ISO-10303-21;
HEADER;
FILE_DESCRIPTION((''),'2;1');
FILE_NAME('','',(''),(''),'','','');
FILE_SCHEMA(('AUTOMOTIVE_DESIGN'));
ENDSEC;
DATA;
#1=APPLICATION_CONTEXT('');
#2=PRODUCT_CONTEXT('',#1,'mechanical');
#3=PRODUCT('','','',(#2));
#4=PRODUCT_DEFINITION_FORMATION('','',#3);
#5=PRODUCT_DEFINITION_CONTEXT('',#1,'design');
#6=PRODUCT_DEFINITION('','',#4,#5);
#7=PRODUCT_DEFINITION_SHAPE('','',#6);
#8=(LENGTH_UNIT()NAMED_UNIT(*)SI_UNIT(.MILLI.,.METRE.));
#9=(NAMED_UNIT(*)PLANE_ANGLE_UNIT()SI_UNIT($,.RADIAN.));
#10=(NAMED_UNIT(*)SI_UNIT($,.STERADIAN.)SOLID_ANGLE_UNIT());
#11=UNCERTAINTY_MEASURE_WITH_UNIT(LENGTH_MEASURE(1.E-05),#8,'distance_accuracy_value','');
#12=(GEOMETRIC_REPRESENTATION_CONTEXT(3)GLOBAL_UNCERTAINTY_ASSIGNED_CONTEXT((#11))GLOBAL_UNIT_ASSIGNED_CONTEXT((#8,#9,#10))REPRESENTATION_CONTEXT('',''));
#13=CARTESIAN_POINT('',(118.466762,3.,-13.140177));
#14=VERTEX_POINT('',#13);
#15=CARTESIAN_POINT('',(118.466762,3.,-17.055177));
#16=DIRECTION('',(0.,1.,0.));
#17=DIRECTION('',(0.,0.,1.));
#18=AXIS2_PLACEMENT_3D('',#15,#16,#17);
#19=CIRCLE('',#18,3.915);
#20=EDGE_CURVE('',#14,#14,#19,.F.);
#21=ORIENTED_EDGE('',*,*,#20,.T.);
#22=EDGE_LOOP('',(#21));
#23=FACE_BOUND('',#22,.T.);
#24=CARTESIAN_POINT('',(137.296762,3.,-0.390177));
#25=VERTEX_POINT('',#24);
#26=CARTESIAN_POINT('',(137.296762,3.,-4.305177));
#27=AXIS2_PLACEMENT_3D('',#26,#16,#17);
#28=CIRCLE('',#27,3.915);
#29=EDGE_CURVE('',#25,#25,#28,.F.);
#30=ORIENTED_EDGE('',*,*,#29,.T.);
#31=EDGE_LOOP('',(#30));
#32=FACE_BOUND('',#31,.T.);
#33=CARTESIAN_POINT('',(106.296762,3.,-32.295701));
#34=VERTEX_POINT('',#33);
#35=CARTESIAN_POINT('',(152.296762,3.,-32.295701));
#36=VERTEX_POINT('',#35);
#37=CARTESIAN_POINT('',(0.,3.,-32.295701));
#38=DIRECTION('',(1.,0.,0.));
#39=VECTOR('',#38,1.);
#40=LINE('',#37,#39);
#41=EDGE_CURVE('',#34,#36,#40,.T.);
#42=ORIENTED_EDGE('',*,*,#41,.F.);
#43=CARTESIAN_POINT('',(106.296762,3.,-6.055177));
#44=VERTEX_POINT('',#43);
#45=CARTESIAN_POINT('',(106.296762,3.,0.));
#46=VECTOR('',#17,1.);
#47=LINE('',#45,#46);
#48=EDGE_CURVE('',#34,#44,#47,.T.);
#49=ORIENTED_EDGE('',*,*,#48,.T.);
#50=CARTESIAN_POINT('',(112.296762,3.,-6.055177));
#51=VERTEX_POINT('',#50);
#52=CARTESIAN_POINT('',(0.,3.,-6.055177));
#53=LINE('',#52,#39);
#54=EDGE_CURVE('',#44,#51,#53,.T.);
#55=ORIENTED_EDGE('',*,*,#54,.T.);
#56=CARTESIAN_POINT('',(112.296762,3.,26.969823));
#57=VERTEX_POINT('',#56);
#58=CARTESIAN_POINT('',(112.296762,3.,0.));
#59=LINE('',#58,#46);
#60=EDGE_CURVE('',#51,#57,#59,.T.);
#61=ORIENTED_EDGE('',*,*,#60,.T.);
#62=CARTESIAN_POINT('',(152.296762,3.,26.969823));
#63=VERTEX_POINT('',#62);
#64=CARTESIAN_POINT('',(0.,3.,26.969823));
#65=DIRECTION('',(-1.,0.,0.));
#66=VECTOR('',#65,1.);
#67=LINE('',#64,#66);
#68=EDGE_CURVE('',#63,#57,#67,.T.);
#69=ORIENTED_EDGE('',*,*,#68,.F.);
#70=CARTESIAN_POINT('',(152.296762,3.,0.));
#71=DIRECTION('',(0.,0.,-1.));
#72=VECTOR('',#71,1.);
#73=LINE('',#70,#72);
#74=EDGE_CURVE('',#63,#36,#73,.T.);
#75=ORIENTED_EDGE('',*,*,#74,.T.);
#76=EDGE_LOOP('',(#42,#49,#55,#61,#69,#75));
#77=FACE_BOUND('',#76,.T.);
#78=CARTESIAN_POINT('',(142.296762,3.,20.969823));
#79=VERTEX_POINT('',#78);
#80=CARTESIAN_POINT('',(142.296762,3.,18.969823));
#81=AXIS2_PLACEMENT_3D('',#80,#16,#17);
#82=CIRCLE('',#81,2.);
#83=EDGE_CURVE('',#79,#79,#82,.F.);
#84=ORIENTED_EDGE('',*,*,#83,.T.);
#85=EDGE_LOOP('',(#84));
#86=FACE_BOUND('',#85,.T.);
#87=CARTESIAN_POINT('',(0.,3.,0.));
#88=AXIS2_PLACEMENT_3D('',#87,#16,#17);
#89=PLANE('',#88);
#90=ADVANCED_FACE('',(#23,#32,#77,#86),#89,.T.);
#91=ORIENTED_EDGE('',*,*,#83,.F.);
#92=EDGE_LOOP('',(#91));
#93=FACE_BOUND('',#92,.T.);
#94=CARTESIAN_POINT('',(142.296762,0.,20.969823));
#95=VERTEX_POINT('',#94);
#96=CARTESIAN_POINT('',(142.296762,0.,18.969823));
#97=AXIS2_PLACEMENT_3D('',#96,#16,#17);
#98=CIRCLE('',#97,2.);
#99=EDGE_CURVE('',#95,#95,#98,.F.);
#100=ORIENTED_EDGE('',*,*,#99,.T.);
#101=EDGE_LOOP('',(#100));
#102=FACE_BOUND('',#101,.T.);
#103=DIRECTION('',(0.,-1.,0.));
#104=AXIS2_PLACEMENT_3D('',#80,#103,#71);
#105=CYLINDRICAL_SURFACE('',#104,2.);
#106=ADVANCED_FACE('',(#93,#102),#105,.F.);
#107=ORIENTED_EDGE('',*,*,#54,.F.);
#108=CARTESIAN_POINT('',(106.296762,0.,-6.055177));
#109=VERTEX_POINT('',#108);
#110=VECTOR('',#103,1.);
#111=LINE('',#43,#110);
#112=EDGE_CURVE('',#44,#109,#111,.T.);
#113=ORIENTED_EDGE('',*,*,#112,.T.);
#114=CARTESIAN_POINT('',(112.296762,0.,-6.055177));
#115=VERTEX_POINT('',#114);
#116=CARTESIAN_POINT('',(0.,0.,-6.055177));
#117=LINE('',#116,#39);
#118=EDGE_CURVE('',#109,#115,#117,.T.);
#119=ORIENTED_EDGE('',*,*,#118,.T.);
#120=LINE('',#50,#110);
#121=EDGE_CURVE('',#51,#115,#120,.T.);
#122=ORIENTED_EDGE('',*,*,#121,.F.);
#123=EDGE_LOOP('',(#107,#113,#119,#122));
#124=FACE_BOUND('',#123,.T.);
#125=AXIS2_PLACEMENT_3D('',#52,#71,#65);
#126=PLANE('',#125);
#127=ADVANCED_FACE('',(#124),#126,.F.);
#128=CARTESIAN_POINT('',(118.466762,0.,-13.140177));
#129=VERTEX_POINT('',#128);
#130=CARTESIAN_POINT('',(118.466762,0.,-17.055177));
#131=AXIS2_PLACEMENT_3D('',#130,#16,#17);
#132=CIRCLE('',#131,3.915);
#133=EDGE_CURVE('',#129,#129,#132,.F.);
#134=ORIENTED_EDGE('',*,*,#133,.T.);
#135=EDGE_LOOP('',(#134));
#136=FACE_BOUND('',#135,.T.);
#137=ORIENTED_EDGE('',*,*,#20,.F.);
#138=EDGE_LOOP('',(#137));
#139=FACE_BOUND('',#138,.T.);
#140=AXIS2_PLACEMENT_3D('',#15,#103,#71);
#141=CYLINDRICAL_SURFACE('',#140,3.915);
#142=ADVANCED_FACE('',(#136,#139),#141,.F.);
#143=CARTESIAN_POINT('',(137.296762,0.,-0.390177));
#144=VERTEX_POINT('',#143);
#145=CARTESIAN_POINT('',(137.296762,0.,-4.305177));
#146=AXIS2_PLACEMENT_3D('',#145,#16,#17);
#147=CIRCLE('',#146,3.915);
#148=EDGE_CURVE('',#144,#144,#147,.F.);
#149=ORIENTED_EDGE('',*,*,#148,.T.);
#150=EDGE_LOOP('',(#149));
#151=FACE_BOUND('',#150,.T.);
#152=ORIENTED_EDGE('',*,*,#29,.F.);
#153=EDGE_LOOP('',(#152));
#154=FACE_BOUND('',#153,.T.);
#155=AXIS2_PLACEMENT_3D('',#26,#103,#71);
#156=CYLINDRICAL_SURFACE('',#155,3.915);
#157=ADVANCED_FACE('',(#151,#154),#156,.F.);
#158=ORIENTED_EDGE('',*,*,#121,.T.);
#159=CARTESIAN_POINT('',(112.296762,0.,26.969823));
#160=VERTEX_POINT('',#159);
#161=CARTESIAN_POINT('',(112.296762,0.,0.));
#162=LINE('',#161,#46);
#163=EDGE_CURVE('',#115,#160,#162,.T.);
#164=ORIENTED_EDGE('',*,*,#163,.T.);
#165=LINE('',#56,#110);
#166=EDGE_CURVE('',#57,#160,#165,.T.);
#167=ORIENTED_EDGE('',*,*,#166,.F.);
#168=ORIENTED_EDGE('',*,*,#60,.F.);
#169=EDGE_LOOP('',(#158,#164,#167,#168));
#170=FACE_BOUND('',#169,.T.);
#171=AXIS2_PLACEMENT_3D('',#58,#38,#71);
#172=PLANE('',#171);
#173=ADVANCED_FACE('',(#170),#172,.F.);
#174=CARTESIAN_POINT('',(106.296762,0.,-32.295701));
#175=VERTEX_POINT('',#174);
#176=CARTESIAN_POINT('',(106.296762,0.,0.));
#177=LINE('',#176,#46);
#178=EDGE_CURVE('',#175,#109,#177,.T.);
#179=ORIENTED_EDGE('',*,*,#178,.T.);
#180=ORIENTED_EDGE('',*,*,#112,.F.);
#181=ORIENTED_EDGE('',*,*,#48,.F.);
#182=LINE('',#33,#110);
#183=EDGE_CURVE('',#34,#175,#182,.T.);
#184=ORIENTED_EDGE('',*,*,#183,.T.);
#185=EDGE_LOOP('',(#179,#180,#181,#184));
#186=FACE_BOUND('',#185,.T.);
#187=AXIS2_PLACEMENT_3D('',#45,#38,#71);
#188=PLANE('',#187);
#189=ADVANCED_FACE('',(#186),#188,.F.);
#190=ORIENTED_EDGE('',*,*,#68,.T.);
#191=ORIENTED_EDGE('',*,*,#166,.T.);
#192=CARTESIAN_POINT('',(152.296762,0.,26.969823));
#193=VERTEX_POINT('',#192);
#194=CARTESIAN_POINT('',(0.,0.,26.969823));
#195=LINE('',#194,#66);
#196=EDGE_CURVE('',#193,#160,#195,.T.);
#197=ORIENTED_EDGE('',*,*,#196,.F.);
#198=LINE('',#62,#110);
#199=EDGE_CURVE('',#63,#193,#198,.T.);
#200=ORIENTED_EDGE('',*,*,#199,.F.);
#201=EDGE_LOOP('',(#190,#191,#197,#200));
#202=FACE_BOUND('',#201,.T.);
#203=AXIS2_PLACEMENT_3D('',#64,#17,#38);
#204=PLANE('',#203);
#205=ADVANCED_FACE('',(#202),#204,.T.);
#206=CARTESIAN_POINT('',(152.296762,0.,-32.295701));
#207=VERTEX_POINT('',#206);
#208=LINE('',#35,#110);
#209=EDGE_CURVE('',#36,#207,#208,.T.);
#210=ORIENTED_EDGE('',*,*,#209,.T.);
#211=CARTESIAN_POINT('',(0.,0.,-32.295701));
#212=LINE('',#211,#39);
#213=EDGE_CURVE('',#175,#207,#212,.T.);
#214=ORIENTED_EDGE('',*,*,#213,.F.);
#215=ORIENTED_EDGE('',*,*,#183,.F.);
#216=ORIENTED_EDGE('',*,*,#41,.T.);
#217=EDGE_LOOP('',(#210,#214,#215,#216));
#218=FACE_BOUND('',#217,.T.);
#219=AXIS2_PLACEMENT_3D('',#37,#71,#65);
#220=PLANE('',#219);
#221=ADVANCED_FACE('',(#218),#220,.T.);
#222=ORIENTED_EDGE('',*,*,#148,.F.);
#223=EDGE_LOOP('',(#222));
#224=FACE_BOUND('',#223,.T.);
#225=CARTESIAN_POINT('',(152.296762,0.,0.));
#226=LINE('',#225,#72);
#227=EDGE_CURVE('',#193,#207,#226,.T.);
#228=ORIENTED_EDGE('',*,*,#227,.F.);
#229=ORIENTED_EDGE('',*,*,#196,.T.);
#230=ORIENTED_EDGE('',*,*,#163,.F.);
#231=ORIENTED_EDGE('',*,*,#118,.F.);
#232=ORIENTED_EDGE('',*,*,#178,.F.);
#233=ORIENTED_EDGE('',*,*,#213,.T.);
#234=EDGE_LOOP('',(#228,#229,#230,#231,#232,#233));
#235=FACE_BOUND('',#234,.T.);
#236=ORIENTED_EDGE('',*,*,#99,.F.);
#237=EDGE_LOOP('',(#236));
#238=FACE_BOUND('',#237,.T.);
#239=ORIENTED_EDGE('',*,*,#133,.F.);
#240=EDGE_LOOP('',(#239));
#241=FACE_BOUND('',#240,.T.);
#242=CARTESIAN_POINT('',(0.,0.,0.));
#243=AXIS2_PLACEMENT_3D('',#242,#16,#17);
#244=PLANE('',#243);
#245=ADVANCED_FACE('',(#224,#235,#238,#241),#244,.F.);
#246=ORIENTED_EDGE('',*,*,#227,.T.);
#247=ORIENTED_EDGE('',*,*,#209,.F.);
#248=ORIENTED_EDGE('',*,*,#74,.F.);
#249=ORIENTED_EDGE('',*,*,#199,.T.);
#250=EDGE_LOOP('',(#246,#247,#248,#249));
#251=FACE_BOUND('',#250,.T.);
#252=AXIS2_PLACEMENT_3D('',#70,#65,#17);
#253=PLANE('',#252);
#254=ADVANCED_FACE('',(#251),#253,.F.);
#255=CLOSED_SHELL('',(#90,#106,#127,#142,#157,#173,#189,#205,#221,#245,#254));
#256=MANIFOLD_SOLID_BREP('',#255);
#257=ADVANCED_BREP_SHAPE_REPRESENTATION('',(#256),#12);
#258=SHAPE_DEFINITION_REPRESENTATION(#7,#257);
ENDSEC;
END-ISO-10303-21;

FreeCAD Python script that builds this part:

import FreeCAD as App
import Part
import Sketcher
from FreeCAD import Vector

doc = App.newDocument("Part")
body = doc.addObject("PartDesign::Body", "Body")

sketch1 = body.newObject("Sketcher::SketchObject", "Sketch")
sketch1.AttachmentSupport = (doc.getObject("XZ_Plane"), [""])
sketch1.MapMode = "FlatFace"
sketch1.addGeometry([
    Part.LineSegment(Vector(106.296762, -32.295701, 0), Vector(106.296762, -6.055177, 0)),
    Part.LineSegment(Vector(106.296762, -6.055177, 0), Vector(112.296762, -6.055177, 0)),
    Part.LineSegment(Vector(112.296762, -6.055177, 0), Vector(112.296762, 26.969823, 0)),
    Part.LineSegment(Vector(112.296762, 26.969823, 0), Vector(152.296762, 26.969823, 0)),
    Part.LineSegment(Vector(152.296762, 26.969823, 0), Vector(152.296762, -32.295701, 0)),
    Part.LineSegment(Vector(152.296762, -32.295701, 0), Vector(106.296762, -32.295701, 0)),
    Part.Circle(Vector(142.296762, 18.969823, 0), Vector(0, 0, 1), 2),
    Part.Circle(Vector(118.466762, -17.055177, 0), Vector(0, 0, 1), 3.915),
    Part.Circle(Vector(137.296762, -4.305177, 0), Vector(0, 0, 1), 3.915),
], False)
sketch1.addConstraint([
    Sketcher.Constraint("Coincident", 0, 2, 1, 1),
    Sketcher.Constraint("Coincident", 1, 2, 2, 1),
    Sketcher.Constraint("Coincident", 2, 2, 3, 1),
    Sketcher.Constraint("Coincident", 3, 2, 4, 1),
    Sketcher.Constraint("Coincident", 4, 2, 5, 1),
    Sketcher.Constraint("Coincident", 5, 2, 0, 1),
    Sketcher.Constraint("Vertical", 0),
    Sketcher.Constraint("Horizontal", 1),
    Sketcher.Constraint("Vertical", 2),
    Sketcher.Constraint("Horizontal", 3),
    Sketcher.Constraint("Vertical", 4),
    Sketcher.Constraint("Horizontal", 5),
    Sketcher.Constraint("Equal", 7, 8),
    Sketcher.Constraint("Diameter", 6, 4.0),
    Sketcher.Constraint("Diameter", 7, 7.83),
    Sketcher.Constraint("DistanceX", 1, 1, 1, 2, 6.0),
    Sketcher.Constraint("DistanceX", 3, 1, 3, 2, 40.0),
    Sketcher.Constraint("DistanceX", 8, 3, 6, 3, 5.0),
    Sketcher.Constraint("DistanceY", 7, 3, 0, 2, 11.0),
    Sketcher.Constraint("DistanceX", 0, 2, 8, 3, 31.0),
    Sketcher.Constraint("DistanceY", 6, 3, 2, 2, 8.0),
    Sketcher.Constraint("DistanceY", 2, 1, 2, 2, 33.025),
    Sketcher.Constraint("DistanceX", 7, 3, 6, 3, 23.83),
    Sketcher.Constraint("DistanceY", 7, 3, 8, 3, 12.75),
    Sketcher.Constraint("DistanceY", 4, 2, -1, 1, 32.295701),
    Sketcher.Constraint("DistanceY", 0, 1, 0, 2, 26.240523),
    Sketcher.Constraint("DistanceX", -1, 1, 6, 3, 142.296762),
])
pad1 = body.newObject("PartDesign::Pad", "Pad")
pad1.Profile = sketch1
pad1.Length = 3
pad1.Reversed = True

doc.recompute()
